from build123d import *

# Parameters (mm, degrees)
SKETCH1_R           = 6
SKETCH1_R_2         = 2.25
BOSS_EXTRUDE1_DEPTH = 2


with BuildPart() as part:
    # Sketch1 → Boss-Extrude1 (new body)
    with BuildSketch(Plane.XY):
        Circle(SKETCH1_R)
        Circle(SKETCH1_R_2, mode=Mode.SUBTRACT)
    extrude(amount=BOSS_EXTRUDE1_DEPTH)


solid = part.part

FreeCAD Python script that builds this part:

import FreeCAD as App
import Part
import Sketcher
from FreeCAD import Vector

doc = App.newDocument("Part")
body = doc.addObject("PartDesign::Body", "Body")

# Sketch on XY plane
sketch1 = body.newObject("Sketcher::SketchObject", "Sketch")
sketch1.AttachmentSupport = (doc.getObject("XY_Plane"), [""])
sketch1.MapMode = "FlatFace"
sketch1.addGeometry(Part.Circle(Vector(0, 0, 0), Vector(0, 0, 1), 6), False)
sketch1.addGeometry(Part.Circle(Vector(0, 0, 0), Vector(0, 0, 1), 2.2), False)
sketch1.addConstraint(Sketcher.Constraint("Coincident", 0, 3, -1, 1))
sketch1.addConstraint(Sketcher.Constraint("Coincident", 1, 3, -1, 1))
sketch1.addConstraint(Sketcher.Constraint("Diameter", 0, 12.0))
sketch1.addConstraint(Sketcher.Constraint("Diameter", 1, 4.5))
pad1 = body.newObject("PartDesign::Pad", "Pad")
pad1.Profile = sketch1
pad1.Length = 2

doc.recompute()
